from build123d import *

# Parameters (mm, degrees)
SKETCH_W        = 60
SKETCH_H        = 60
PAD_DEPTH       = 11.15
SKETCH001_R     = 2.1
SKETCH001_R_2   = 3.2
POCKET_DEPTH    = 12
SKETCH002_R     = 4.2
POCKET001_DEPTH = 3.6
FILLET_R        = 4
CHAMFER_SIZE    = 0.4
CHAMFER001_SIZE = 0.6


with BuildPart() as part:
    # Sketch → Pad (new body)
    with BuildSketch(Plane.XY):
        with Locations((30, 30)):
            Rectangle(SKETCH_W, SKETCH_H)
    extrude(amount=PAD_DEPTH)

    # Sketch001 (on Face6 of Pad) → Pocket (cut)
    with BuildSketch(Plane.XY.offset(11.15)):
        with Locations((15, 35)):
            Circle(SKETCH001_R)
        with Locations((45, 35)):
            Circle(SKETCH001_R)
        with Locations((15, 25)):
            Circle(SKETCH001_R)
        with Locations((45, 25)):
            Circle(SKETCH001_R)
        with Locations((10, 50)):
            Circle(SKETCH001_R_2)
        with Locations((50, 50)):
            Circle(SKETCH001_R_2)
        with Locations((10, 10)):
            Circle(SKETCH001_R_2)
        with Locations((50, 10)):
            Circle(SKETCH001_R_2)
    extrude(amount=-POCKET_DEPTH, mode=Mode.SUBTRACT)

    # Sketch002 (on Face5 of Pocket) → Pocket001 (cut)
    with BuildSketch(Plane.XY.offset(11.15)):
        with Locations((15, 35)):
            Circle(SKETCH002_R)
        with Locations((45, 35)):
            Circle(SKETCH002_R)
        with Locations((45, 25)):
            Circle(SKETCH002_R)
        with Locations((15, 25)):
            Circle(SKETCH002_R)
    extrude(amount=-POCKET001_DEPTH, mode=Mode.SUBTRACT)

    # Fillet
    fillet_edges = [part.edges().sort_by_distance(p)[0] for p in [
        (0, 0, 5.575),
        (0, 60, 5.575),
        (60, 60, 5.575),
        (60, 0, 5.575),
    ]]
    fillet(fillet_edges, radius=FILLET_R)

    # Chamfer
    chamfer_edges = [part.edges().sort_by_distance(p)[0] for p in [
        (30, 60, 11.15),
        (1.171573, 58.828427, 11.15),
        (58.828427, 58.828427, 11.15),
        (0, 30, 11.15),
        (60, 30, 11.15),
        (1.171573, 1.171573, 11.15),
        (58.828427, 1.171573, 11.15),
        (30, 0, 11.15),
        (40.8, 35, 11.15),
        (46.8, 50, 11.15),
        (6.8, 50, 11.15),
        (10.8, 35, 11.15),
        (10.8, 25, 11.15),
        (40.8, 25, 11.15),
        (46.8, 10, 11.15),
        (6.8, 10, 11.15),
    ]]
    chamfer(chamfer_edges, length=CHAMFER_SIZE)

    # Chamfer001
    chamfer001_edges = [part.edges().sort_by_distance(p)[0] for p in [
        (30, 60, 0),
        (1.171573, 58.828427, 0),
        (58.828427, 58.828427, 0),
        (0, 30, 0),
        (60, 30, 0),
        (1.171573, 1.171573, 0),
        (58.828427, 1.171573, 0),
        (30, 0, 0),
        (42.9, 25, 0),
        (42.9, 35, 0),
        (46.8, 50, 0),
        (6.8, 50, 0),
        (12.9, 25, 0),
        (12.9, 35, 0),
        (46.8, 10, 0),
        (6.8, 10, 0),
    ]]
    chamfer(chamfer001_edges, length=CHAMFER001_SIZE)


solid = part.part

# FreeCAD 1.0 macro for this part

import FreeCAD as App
import Part
import Sketcher


def edges_at(feature, points):
    """Names of the edges that pass closest to the given points."""
    edges = feature.Shape.Edges
    near = lambda p: min(range(len(edges)), key=lambda i: edges[i].distToShape(Part.Vertex(*p))[0])
    return sorted({f"Edge{near(p) + 1}" for p in points})

doc = App.newDocument("Part")
body = doc.addObject("PartDesign::Body", "Body")

# Sketch on XY plane
sketch1 = body.newObject("Sketcher::SketchObject", "Sketch")
sketch1.AttachmentSupport = (doc.getObject("XY_Plane"), [""])
sketch1.MapMode = "FlatFace"
sketch1.addGeometry([
    Part.LineSegment(App.Vector(0, 60, 0), App.Vector(0, 0, 0)),
    Part.LineSegment(App.Vector(0, 0, 0), App.Vector(60, 0, 0)),
    Part.LineSegment(App.Vector(60, 0, 0), App.Vector(60, 60, 0)),
    Part.LineSegment(App.Vector(60, 60, 0), App.Vector(0, 60, 0)),
], False)
sketch1.addConstraint([
    Sketcher.Constraint("Coincident", 0, 2, 1, 1),
    Sketcher.Constraint("Coincident", 1, 2, 2, 1),
    Sketcher.Constraint("Coincident", 2, 2, 3, 1),
    Sketcher.Constraint("Coincident", 3, 2, 0, 1),
    Sketcher.Constraint("Vertical", 0),
    Sketcher.Constraint("Horizontal", 1),
    Sketcher.Constraint("Vertical", 2),
    Sketcher.Constraint("Horizontal", 3),
    Sketcher.Constraint("Coincident", 0, 2, -1, 1),
    Sketcher.Constraint("Equal", 3, 0),
    Sketcher.Constraint("DistanceX", 1, 1, 1, 2, 60.0),
])
pad1 = body.newObject("PartDesign::Pad", "Pad")
pad1.Profile = sketch1
pad1.Length = 11.15

# Sketch on XY plane
sketch2 = body.newObject("Sketcher::SketchObject", "Sketch001")
sketch2.AttachmentSupport = (doc.getObject("XY_Plane"), [""])
sketch2.MapMode = "FlatFace"
sketch2.AttachmentOffset = App.Placement(App.Vector(0, 0, 11.15), App.Rotation())
sketch2.addGeometry([
    Part.Circle(App.Vector(15, 35, 0), App.Vector(0, 0, 1), 2.1),  # 0
    Part.Circle(App.Vector(45, 35, 0), App.Vector(0, 0, 1), 2.1),  # 1
    Part.Circle(App.Vector(15, 25, 0), App.Vector(0, 0, 1), 2.1),  # 2
    Part.Circle(App.Vector(45, 25, 0), App.Vector(0, 0, 1), 2.1),  # 3
    Part.Circle(App.Vector(10, 50, 0), App.Vector(0, 0, 1), 3.2),  # 4
    Part.Circle(App.Vector(50, 50, 0), App.Vector(0, 0, 1), 3.2),  # 5
    Part.Circle(App.Vector(10, 10, 0), App.Vector(0, 0, 1), 3.2),  # 6
    Part.Circle(App.Vector(50, 10, 0), App.Vector(0, 0, 1), 3.2),  # 7
], False)
sketch2.addConstraint([
    Sketcher.Constraint("Equal", 0, 1),
    Sketcher.Constraint("Equal", 1, 2),
    Sketcher.Constraint("Equal", 2, 3),
    Sketcher.Constraint("Equal", 4, 5),
    Sketcher.Constraint("Equal", 5, 6),
    Sketcher.Constraint("Equal", 6, 7),
    Sketcher.Constraint("Horizontal", 0, 3, 1, 3),
    Sketcher.Constraint("Horizontal", 2, 3, 3, 3),
    Sketcher.Constraint("Horizontal", 4, 3, 5, 3),
    Sketcher.Constraint("Horizontal", 6, 3, 7, 3),
    Sketcher.Constraint("Vertical", 0, 3, 2, 3),
    Sketcher.Constraint("Vertical", 1, 3, 3, 3),
    Sketcher.Constraint("Vertical", 4, 3, 6, 3),
    Sketcher.Constraint("Vertical", 5, 3, 7, 3),
    Sketcher.Constraint("Diameter", 0, 4.2),
    Sketcher.Constraint("Diameter", 4, 6.4),
    Sketcher.Constraint("DistanceX", -1, 1, 0, 3, 15.0),
    Sketcher.Constraint("DistanceY", -1, 1, 0, 3, 35.0),
    Sketcher.Constraint("DistanceX", -1, 1, 1, 3, 45.0),
    Sketcher.Constraint("DistanceY", -1, 1, 2, 3, 25.0),
    Sketcher.Constraint("DistanceX", -1, 1, 4, 3, 10.0),
    Sketcher.Constraint("DistanceY", -1, 1, 4, 3, 50.0),
    Sketcher.Constraint("DistanceX", -1, 1, 5, 3, 50.0),
    Sketcher.Constraint("DistanceY", -1, 1, 6, 3, 10.0),
])
pocket1 = body.newObject("PartDesign::Pocket", "Pocket")
pocket1.Profile = sketch2
pocket1.Length = 12

# Sketch on XY plane
sketch3 = body.newObject("Sketcher::SketchObject", "Sketch002")
sketch3.AttachmentSupport = (doc.getObject("XY_Plane"), [""])
sketch3.MapMode = "FlatFace"
sketch3.AttachmentOffset = App.Placement(App.Vector(0, 0, 11.15), App.Rotation())
sketch3.addGeometry([
    Part.Circle(App.Vector(15, 35, 0), App.Vector(0, 0, 1), 4.2),
    Part.Circle(App.Vector(45, 35, 0), App.Vector(0, 0, 1), 4.2),
    Part.Circle(App.Vector(45, 25, 0), App.Vector(0, 0, 1), 4.2),
    Part.Circle(App.Vector(15, 25, 0), App.Vector(0, 0, 1), 4.2),
], False)
sketch3.addConstraint([
    Sketcher.Constraint("Equal", 0, 1),
    Sketcher.Constraint("Equal", 1, 2),
    Sketcher.Constraint("Equal", 2, 3),
    Sketcher.Constraint("Horizontal", 0, 3, 1, 3),
    Sketcher.Constraint("Horizontal", 2, 3, 3, 3),
    Sketcher.Constraint("Vertical", 1, 3, 2, 3),
    Sketcher.Constraint("Vertical", 0, 3, 3, 3),
    Sketcher.Constraint("Diameter", 0, 8.4),
    Sketcher.Constraint("DistanceX", -1, 1, 0, 3, 15.0),
    Sketcher.Constraint("DistanceY", -1, 1, 0, 3, 35.0),
    Sketcher.Constraint("DistanceX", -1, 1, 1, 3, 45.0),
    Sketcher.Constraint("DistanceY", -1, 1, 2, 3, 25.0),
])
pocket2 = body.newObject("PartDesign::Pocket", "Pocket001")
pocket2.Profile = sketch3
pocket2.Length = 3.6
doc.recompute()

fillet = body.newObject("PartDesign::Fillet", "Fillet")
fillet.Base = (pocket2, edges_at(pocket2, [
    (0, 0, 5.575),
    (0, 60, 5.575),
    (60, 60, 5.575),
    (60, 0, 5.575),
]))
fillet.Radius = 4
doc.recompute()

chamfer = body.newObject("PartDesign::Chamfer", "Chamfer")
chamfer.Base = (fillet, edges_at(fillet, [
    (30, 60, 11.15),
    (1.172, 58.828, 11.15),
    (58.828, 58.828, 11.15),
    (0, 30, 11.15),
    (60, 30, 11.15),
    (1.172, 1.172, 11.15),
    (58.828, 1.172, 11.15),
    (30, 0, 11.15),
    (40.8, 35, 11.15),
    (46.8, 50, 11.15),
    (6.8, 50, 11.15),
    (10.8, 35, 11.15),
    (10.8, 25, 11.15),
    (40.8, 25, 11.15),
    (46.8, 10, 11.15),
    (6.8, 10, 11.15),
]))
chamfer.Size = 0.4
doc.recompute()

chamfer2 = body.newObject("PartDesign::Chamfer", "Chamfer001")
chamfer2.Base = (chamfer, edges_at(chamfer, [
    (30, 60, 0),
    (1.172, 58.828, 0),
    (58.828, 58.828, 0),
    (0, 30, 0),
    (60, 30, 0),
    (1.172, 1.172, 0),
    (58.828, 1.172, 0),
    (30, 0, 0),
    (42.9, 25, 0),
    (42.9, 35, 0),
    (46.8, 50, 0),
    (6.8, 50, 0),
    (12.9, 25, 0),
    (12.9, 35, 0),
    (46.8, 10, 0),
    (6.8, 10, 0),
]))
chamfer2.Size = 0.6

doc.recompute()
